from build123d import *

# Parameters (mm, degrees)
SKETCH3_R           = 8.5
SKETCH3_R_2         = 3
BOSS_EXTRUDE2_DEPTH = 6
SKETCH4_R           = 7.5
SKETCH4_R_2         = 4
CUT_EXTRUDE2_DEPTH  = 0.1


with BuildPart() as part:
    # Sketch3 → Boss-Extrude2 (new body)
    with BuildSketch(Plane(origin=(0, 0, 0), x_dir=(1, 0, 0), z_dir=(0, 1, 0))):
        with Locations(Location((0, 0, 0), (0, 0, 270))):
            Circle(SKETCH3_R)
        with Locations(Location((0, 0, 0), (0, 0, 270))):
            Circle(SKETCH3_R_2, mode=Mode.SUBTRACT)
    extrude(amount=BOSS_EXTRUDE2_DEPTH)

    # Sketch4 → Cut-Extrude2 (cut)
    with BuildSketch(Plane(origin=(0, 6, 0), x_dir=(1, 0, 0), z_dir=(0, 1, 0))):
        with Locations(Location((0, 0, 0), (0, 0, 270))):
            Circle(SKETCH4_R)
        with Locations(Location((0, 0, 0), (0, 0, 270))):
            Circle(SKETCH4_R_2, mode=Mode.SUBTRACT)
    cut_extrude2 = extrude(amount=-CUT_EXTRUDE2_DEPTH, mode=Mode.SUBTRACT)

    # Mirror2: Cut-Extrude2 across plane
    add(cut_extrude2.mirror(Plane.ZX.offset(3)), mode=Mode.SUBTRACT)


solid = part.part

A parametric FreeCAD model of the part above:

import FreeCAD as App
import Part
import Sketcher
Q = App.Units.Quantity

doc = App.newDocument("Part")
body = doc.addObject("PartDesign::Body", "Body")

# Sketch on XZ plane
sketch1 = body.newObject("Sketcher::SketchObject", "Sketch")
sketch1.AttachmentSupport = (doc.getObject("XZ_Plane"), [""])
sketch1.MapMode = "FlatFace"
sketch1.addGeometry(Part.Circle(App.Vector(0, 0, 0), App.Vector(0, 0, 1), 8.5), False)
sketch1.addGeometry(Part.Circle(App.Vector(0, 0, 0), App.Vector(0, 0, 1), 3), False)
sketch1.addConstraint(Sketcher.Constraint("Coincident", 0, 3, -1, 1))
sketch1.addConstraint(Sketcher.Constraint("Coincident", 1, 3, -1, 1))
sketch1.addConstraint(Sketcher.Constraint("Diameter", 0, Q("17 mm")))
sketch1.addConstraint(Sketcher.Constraint("Diameter", 1, Q("6 mm")))
pad1 = body.newObject("PartDesign::Pad", "Pad")
pad1.Profile = sketch1
pad1.Length = 6
pad1.Reversed = True

# Sketch on XZ plane
sketch2 = body.newObject("Sketcher::SketchObject", "Sketch001")
sketch2.AttachmentSupport = (doc.getObject("XZ_Plane"), [""])
sketch2.MapMode = "FlatFace"
sketch2.AttachmentOffset = App.Placement(App.Vector(0, 0, -6), App.Rotation())
sketch2.addGeometry(Part.Circle(App.Vector(0, 0, 0), App.Vector(0, 0, 1), 7.5), False)
sketch2.addGeometry(Part.Circle(App.Vector(0, 0, 0), App.Vector(0, 0, 1), 4), False)
sketch2.addConstraint(Sketcher.Constraint("Coincident", 0, 3, -1, 1))
sketch2.addConstraint(Sketcher.Constraint("Coincident", 1, 3, -1, 1))
sketch2.addConstraint(Sketcher.Constraint("Diameter", 0, Q("15 mm")))
sketch2.addConstraint(Sketcher.Constraint("Diameter", 1, Q("8 mm")))
pocket1 = body.newObject("PartDesign::Pocket", "Pocket")
pocket1.Profile = sketch2
pocket1.Length = 0.1
pocket1.Reversed = True
doc.recompute()

datumplane = body.newObject("PartDesign::Plane", "DatumPlane")
datumplane.AttachmentSupport = (doc.getObject("XZ_Plane"), [""])
datumplane.MapMode = "FlatFace"
datumplane.AttachmentOffset = App.Placement(App.Vector(0, 0, -3), App.Rotation())
mirrored = body.newObject("PartDesign::Mirrored", "Mirrored")
mirrored.Originals = [pocket1]
mirrored.MirrorPlane = (datumplane, [""])
body.Tip = mirrored

doc.recompute()
